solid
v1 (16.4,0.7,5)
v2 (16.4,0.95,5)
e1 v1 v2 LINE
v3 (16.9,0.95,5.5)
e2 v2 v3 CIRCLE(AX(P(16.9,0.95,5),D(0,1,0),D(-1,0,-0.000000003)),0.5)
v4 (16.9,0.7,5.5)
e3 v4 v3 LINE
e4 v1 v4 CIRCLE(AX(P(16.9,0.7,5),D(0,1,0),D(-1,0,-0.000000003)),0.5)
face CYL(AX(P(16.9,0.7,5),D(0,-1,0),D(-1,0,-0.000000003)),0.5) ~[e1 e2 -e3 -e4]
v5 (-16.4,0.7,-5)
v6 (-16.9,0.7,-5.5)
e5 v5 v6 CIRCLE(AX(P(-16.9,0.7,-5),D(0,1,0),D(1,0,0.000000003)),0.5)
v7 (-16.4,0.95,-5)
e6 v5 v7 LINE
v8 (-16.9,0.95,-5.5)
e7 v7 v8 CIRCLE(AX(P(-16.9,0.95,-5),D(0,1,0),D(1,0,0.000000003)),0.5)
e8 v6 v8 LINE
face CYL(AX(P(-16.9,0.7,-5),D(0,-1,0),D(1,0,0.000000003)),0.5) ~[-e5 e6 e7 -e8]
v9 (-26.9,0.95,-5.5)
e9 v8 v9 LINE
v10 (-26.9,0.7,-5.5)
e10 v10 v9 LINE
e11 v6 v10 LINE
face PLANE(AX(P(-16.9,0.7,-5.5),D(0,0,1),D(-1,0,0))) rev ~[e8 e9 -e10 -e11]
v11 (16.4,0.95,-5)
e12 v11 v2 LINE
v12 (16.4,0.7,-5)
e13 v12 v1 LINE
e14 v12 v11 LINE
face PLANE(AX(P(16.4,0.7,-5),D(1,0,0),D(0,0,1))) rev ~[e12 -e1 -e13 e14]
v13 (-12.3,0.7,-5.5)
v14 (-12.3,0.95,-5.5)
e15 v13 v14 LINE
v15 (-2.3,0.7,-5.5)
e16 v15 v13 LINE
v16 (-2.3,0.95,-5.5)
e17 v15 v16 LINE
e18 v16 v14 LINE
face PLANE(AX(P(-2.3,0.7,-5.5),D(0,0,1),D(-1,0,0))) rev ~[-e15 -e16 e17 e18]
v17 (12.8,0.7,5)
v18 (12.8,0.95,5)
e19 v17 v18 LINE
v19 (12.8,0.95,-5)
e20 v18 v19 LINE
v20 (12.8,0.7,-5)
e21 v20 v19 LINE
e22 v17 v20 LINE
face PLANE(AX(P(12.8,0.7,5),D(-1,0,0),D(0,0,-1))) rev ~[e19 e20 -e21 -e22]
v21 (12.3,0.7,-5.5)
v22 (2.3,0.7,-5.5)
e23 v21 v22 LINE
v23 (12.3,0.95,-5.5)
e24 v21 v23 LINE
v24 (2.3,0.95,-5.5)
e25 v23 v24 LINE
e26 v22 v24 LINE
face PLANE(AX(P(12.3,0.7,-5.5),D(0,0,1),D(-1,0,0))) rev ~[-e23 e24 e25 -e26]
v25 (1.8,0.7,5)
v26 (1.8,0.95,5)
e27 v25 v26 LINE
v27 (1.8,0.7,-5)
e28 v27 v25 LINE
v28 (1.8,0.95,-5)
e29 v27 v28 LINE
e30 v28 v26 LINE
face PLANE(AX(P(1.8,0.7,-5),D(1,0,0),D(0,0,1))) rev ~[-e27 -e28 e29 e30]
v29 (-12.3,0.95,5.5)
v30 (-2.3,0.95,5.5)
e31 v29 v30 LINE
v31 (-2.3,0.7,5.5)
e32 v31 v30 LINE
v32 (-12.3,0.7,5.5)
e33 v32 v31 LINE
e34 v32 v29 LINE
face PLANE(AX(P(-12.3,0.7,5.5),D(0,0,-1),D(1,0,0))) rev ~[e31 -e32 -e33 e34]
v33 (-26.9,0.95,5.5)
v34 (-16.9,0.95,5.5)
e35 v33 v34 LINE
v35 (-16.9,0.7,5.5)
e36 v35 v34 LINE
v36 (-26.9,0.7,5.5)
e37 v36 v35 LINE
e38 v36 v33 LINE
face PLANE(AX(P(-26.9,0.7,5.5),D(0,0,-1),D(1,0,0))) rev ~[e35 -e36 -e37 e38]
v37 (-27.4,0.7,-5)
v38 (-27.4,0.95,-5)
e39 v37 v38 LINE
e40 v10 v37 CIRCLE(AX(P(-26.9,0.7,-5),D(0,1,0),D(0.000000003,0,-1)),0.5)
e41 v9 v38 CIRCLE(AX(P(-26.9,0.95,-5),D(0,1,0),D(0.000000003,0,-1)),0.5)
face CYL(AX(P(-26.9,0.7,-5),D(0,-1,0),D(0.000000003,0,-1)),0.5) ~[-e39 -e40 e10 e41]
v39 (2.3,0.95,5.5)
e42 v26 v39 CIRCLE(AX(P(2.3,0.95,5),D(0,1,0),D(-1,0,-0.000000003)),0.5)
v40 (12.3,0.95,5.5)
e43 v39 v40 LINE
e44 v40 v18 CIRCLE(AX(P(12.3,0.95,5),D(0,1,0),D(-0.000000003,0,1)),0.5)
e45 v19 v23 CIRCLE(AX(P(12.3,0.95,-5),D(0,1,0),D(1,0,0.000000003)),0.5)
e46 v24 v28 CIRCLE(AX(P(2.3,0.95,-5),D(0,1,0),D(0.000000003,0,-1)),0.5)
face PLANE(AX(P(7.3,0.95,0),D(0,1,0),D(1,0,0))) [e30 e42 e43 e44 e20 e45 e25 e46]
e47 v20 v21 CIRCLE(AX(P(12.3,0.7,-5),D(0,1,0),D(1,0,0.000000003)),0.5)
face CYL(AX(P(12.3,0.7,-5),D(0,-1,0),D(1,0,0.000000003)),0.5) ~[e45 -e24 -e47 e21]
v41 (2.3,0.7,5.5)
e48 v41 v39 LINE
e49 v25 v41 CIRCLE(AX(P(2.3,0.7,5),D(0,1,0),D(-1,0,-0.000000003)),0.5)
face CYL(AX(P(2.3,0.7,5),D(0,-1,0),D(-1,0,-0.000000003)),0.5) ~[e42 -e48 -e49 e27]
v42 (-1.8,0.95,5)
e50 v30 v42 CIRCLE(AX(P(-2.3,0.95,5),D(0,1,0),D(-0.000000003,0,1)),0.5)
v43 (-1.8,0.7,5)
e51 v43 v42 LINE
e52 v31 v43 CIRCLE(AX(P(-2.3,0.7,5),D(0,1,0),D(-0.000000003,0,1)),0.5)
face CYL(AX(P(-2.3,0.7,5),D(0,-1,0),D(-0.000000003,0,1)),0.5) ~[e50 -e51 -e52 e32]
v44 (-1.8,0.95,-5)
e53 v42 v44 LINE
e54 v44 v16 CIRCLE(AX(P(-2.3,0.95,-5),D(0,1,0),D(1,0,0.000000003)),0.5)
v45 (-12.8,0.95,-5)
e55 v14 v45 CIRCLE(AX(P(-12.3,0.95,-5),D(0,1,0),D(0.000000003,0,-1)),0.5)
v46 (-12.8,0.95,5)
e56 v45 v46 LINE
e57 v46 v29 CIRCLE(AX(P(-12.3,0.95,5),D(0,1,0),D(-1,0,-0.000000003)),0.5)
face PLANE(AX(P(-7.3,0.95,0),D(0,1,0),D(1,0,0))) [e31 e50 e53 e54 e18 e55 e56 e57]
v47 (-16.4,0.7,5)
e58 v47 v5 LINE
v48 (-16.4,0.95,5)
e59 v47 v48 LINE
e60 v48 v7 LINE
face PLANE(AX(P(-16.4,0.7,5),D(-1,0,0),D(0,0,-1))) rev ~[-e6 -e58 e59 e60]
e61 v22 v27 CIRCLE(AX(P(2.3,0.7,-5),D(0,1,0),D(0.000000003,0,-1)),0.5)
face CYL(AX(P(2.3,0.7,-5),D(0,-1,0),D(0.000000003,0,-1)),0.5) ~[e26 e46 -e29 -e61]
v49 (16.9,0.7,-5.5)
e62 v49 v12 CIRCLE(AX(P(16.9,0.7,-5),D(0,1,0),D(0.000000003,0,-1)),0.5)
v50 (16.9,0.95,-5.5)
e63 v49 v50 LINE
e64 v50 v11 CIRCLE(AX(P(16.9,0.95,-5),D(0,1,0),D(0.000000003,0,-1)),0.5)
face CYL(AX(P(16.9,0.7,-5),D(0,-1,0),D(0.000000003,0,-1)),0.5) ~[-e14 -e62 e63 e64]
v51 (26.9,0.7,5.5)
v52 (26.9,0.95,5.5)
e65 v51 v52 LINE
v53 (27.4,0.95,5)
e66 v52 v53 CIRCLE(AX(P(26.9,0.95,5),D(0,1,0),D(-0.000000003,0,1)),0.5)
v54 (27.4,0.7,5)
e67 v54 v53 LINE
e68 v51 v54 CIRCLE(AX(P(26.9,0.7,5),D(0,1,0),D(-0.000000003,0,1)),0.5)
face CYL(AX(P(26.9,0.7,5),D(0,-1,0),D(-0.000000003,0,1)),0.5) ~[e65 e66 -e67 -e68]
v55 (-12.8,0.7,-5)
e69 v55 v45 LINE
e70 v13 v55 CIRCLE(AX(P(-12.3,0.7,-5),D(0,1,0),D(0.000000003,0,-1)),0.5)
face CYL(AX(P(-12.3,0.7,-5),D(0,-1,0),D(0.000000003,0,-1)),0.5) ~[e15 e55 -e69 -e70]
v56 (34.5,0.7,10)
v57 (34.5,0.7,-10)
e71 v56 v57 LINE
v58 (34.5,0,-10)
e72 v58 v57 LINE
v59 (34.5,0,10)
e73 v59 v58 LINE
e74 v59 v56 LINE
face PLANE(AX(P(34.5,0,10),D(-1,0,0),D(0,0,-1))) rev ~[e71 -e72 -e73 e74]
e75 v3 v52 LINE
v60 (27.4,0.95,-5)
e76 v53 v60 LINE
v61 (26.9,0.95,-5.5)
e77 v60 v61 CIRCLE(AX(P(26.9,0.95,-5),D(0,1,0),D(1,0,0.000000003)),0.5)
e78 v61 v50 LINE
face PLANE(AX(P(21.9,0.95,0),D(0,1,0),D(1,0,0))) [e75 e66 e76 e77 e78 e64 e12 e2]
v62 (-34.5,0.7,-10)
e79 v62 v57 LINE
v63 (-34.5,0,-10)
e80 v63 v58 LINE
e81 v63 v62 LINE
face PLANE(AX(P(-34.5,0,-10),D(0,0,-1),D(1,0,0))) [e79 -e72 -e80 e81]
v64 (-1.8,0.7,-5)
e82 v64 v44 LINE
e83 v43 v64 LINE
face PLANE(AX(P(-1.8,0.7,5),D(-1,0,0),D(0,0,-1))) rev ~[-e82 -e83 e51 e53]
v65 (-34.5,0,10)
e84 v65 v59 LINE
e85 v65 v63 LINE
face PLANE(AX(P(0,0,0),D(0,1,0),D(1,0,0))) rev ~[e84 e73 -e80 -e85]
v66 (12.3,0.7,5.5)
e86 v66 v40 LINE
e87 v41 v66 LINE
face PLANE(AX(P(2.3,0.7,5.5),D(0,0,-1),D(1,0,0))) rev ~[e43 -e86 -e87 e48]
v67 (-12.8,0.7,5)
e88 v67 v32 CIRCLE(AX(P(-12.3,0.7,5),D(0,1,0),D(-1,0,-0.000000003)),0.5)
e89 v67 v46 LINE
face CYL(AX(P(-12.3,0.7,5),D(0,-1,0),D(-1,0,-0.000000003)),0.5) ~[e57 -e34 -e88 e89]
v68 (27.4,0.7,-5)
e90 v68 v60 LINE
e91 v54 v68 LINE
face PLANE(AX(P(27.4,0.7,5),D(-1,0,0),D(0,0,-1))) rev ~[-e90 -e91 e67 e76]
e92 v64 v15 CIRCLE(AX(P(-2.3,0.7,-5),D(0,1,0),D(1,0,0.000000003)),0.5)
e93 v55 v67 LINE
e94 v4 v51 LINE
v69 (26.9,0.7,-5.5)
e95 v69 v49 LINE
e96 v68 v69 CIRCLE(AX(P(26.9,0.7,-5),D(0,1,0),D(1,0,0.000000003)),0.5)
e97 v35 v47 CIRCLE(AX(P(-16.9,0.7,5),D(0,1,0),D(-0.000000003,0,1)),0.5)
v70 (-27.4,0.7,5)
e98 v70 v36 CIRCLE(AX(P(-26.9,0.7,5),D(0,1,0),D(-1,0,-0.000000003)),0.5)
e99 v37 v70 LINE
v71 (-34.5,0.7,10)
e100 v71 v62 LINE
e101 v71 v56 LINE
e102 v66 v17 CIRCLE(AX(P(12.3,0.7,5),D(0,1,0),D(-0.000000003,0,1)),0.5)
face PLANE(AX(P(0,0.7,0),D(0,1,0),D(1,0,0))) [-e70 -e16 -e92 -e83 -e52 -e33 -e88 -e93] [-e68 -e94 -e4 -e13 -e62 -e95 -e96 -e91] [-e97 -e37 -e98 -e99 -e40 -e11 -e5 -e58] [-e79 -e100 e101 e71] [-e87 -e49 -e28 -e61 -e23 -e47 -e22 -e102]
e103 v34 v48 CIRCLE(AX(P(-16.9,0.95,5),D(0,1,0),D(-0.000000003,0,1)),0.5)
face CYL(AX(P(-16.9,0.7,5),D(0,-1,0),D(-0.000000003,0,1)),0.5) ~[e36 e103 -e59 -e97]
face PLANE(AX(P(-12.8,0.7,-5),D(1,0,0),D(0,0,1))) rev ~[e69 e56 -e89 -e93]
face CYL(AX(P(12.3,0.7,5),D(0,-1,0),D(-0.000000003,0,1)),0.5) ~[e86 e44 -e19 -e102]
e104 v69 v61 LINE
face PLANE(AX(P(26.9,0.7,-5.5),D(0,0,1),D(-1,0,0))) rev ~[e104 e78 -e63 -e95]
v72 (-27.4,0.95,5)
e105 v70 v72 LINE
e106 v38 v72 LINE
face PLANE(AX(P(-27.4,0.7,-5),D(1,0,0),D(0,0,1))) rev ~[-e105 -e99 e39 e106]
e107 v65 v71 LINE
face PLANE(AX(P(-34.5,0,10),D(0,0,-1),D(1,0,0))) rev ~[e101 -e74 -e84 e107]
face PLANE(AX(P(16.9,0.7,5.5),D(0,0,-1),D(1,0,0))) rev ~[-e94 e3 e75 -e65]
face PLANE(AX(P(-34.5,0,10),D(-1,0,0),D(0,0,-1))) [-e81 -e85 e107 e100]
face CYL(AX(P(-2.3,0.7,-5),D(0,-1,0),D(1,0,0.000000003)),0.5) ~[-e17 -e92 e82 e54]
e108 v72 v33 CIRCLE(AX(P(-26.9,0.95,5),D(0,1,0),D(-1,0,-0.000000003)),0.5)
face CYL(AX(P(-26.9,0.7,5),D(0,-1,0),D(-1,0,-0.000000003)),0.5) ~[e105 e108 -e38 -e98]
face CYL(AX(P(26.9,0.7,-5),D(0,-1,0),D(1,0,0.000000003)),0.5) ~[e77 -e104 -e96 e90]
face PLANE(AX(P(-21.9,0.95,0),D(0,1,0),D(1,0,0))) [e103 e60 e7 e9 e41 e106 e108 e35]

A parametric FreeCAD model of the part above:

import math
import FreeCAD as App
import Part
import Sketcher

doc = App.newDocument("Part")
params = doc.addObject("Spreadsheet::Sheet", "Params")
for row, (alias, value) in enumerate([
    ("sketch1_width", "69 mm"),
    ("sketch1_height", "20 mm"),
    ("pad1_length", "0.7 mm"),
    ("sketch2_radius", "0.5 mm"),
    ("sketch2_width", "10 mm"),
    ("pad2_length", "0.25 mm"),
], start=1):
    params.set(f"A{row}", alias)
    params.set(f"B{row}", "=" + value)
    params.setAlias(f"B{row}", alias)

body = doc.addObject("PartDesign::Body", "Body")

# Sketch on XZ plane
sketch1 = doc.addObject("Sketcher::SketchObject", "Sketch")
body.addObject(sketch1)
sketch1.AttachmentSupport = (doc.XZ_Plane, [""])
sketch1.MapMode = "FlatFace"
sketch1.addGeometry([
    Part.LineSegment(App.Vector(-34, -10, 0), App.Vector(-34, 10, 0)),
    Part.LineSegment(App.Vector(-34, 10, 0), App.Vector(34, 10, 0)),
    Part.LineSegment(App.Vector(34, 10, 0), App.Vector(34, -10, 0)),
    Part.LineSegment(App.Vector(34, -10, 0), App.Vector(-34, -10, 0)),
], False)
sketch1.addConstraint([
    Sketcher.Constraint("Coincident", 0, 2, 1, 1),
    Sketcher.Constraint("Coincident", 1, 2, 2, 1),
    Sketcher.Constraint("Coincident", 2, 2, 3, 1),
    Sketcher.Constraint("Coincident", 3, 2, 0, 1),
    Sketcher.Constraint("Vertical", 0),
    Sketcher.Constraint("Horizontal", 1),
    Sketcher.Constraint("Vertical", 2),
    Sketcher.Constraint("Horizontal", 3),
    Sketcher.Constraint("Symmetric", 0, 2, 2, 2, -1, 1),
    Sketcher.Constraint("DistanceX", 1, 1, 1, 2, 69.0),
    Sketcher.Constraint("DistanceY", 0, 1, 0, 2, 20.0),
])
sketch1.setExpression("Constraints[9]", "Params.sketch1_width")
sketch1.setExpression("Constraints[10]", "Params.sketch1_height")
pad1 = doc.addObject("PartDesign::Pad", "Pad")
body.addObject(pad1)
pad1.Profile = sketch1
pad1.setExpression("Length", "Params.pad1_length")
pad1.Reversed = True

# Sketch on XZ plane
sketch2 = doc.addObject("Sketcher::SketchObject", "Sketch001")
body.addObject(sketch2)
sketch2.AttachmentSupport = (doc.XZ_Plane, [""])
sketch2.MapMode = "FlatFace"
sketch2.AttachmentOffset = App.Placement(App.Vector(0, 0, -0.7), App.Rotation())
sketch2.addGeometry([
    Part.LineSegment(App.Vector(-26.9, 5.5, 0), App.Vector(-16.9, 5.5, 0)),  # 0
    Part.ArcOfCircle(Part.Circle(App.Vector(-16.9, 5, 0), App.Vector(0, 0, 1), 0.5), math.radians(0), math.radians(90)),  # 1
    Part.LineSegment(App.Vector(-16.4, 5, 0), App.Vector(-16.4, -5, 0)),  # 2
    Part.ArcOfCircle(Part.Circle(App.Vector(-16.9, -5, 0), App.Vector(0, 0, 1), 0.5), math.radians(-90), math.radians(0)),  # 3
    Part.LineSegment(App.Vector(-16.9, -5.5, 0), App.Vector(-26.9, -5.5, 0)),  # 4
    Part.ArcOfCircle(Part.Circle(App.Vector(-26.9, -5, 0), App.Vector(0, 0, 1), 0.5), math.radians(180), math.radians(270)),  # 5
    Part.LineSegment(App.Vector(-27.4, -5, 0), App.Vector(-27.4, 5, 0)),  # 6
    Part.ArcOfCircle(Part.Circle(App.Vector(-26.9, 5, 0), App.Vector(0, 0, 1), 0.5), math.radians(90), math.radians(180)),  # 7
    Part.LineSegment(App.Vector(-12.3, 5.5, 0), App.Vector(-2.3, 5.5, 0)),  # 8
    Part.ArcOfCircle(Part.Circle(App.Vector(-2.3, 5, 0), App.Vector(0, 0, 1), 0.5), math.radians(0), math.radians(90)),  # 9
    Part.LineSegment(App.Vector(-1.8, 5, 0), App.Vector(-1.8, -5, 0)),  # 10
    Part.ArcOfCircle(Part.Circle(App.Vector(-2.3, -5, 0), App.Vector(0, 0, 1), 0.5), math.radians(-90), math.radians(0)),  # 11
    Part.LineSegment(App.Vector(-2.3, -5.5, 0), App.Vector(-12.3, -5.5, 0)),  # 12
    Part.ArcOfCircle(Part.Circle(App.Vector(-12.3, -5, 0), App.Vector(0, 0, 1), 0.5), math.radians(180), math.radians(270)),  # 13
    Part.LineSegment(App.Vector(-12.8, -5, 0), App.Vector(-12.8, 5, 0)),  # 14
    Part.ArcOfCircle(Part.Circle(App.Vector(-12.3, 5, 0), App.Vector(0, 0, 1), 0.5), math.radians(90), math.radians(180)),  # 15
    Part.LineSegment(App.Vector(2.3, 5.5, 0), App.Vector(12.3, 5.5, 0)),  # 16
    Part.ArcOfCircle(Part.Circle(App.Vector(12.3, 5, 0), App.Vector(0, 0, 1), 0.5), math.radians(0), math.radians(90)),  # 17
    Part.LineSegment(App.Vector(12.8, 5, 0), App.Vector(12.8, -5, 0)),  # 18
    Part.ArcOfCircle(Part.Circle(App.Vector(12.3, -5, 0), App.Vector(0, 0, 1), 0.5), math.radians(-90), math.radians(0)),  # 19
    Part.LineSegment(App.Vector(12.3, -5.5, 0), App.Vector(2.3, -5.5, 0)),  # 20
    Part.ArcOfCircle(Part.Circle(App.Vector(2.3, -5, 0), App.Vector(0, 0, 1), 0.5), math.radians(180), math.radians(270)),  # 21
    Part.LineSegment(App.Vector(1.8, -5, 0), App.Vector(1.8, 5, 0)),  # 22
    Part.ArcOfCircle(Part.Circle(App.Vector(2.3, 5, 0), App.Vector(0, 0, 1), 0.5), math.radians(90), math.radians(180)),  # 23
    Part.LineSegment(App.Vector(16.9, 5.5, 0), App.Vector(26.9, 5.5, 0)),  # 24
    Part.ArcOfCircle(Part.Circle(App.Vector(26.9, 5, 0), App.Vector(0, 0, 1), 0.5), math.radians(0), math.radians(90)),  # 25
    Part.LineSegment(App.Vector(27.4, 5, 0), App.Vector(27.4, -5, 0)),  # 26
    Part.ArcOfCircle(Part.Circle(App.Vector(26.9, -5, 0), App.Vector(0, 0, 1), 0.5), math.radians(-90), math.radians(0)),  # 27
    Part.LineSegment(App.Vector(26.9, -5.5, 0), App.Vector(16.9, -5.5, 0)),  # 28
    Part.ArcOfCircle(Part.Circle(App.Vector(16.9, -5, 0), App.Vector(0, 0, 1), 0.5), math.radians(180), math.radians(270)),  # 29
    Part.LineSegment(App.Vector(16.4, -5, 0), App.Vector(16.4, 5, 0)),  # 30
    Part.ArcOfCircle(Part.Circle(App.Vector(16.9, 5, 0), App.Vector(0, 0, 1), 0.5), math.radians(90), math.radians(180)),  # 31
], False)
sketch2.addConstraint([
    Sketcher.Constraint("Tangent", 0, 2, 1, 2),
    Sketcher.Constraint("Tangent", 1, 1, 2, 1),
    Sketcher.Constraint("Tangent", 2, 2, 3, 2),
    Sketcher.Constraint("Tangent", 3, 1, 4, 1),
    Sketcher.Constraint("Tangent", 4, 2, 5, 2),
    Sketcher.Constraint("Tangent", 5, 1, 6, 1),
    Sketcher.Constraint("Tangent", 6, 2, 7, 2),
    Sketcher.Constraint("Tangent", 7, 1, 0, 1),
    Sketcher.Constraint("Tangent", 8, 2, 9, 2),
    Sketcher.Constraint("Tangent", 9, 1, 10, 1),
    Sketcher.Constraint("Tangent", 10, 2, 11, 2),
    Sketcher.Constraint("Tangent", 11, 1, 12, 1),
    Sketcher.Constraint("Tangent", 12, 2, 13, 2),
    Sketcher.Constraint("Tangent", 13, 1, 14, 1),
    Sketcher.Constraint("Tangent", 14, 2, 15, 2),
    Sketcher.Constraint("Tangent", 15, 1, 8, 1),
    Sketcher.Constraint("Tangent", 16, 2, 17, 2),
    Sketcher.Constraint("Tangent", 17, 1, 18, 1),
    Sketcher.Constraint("Tangent", 18, 2, 19, 2),
    Sketcher.Constraint("Tangent", 19, 1, 20, 1),
    Sketcher.Constraint("Tangent", 20, 2, 21, 2),
    Sketcher.Constraint("Tangent", 21, 1, 22, 1),
    Sketcher.Constraint("Tangent", 22, 2, 23, 2),
    Sketcher.Constraint("Tangent", 23, 1, 16, 1),
    Sketcher.Constraint("Tangent", 24, 2, 25, 2),
    Sketcher.Constraint("Tangent", 25, 1, 26, 1),
    Sketcher.Constraint("Tangent", 26, 2, 27, 2),
    Sketcher.Constraint("Tangent", 27, 1, 28, 1),
    Sketcher.Constraint("Tangent", 28, 2, 29, 2),
    Sketcher.Constraint("Tangent", 29, 1, 30, 1),
    Sketcher.Constraint("Tangent", 30, 2, 31, 2),
    Sketcher.Constraint("Tangent", 31, 1, 24, 1),
    Sketcher.Constraint("Horizontal", 0),
    Sketcher.Constraint("Vertical", 2),
    Sketcher.Constraint("Horizontal", 4),
    Sketcher.Constraint("Vertical", 6),
    Sketcher.Constraint("Horizontal", 8),
    Sketcher.Constraint("Vertical", 10),
    Sketcher.Constraint("Horizontal", 12),
    Sketcher.Constraint("Vertical", 14),
    Sketcher.Constraint("Horizontal", 16),
    Sketcher.Constraint("Vertical", 18),
    Sketcher.Constraint("Horizontal", 20),
    Sketcher.Constraint("Vertical", 22),
    Sketcher.Constraint("Horizontal", 24),
    Sketcher.Constraint("Vertical", 26),
    Sketcher.Constraint("Horizontal", 28),
    Sketcher.Constraint("Vertical", 30),
    Sketcher.Constraint("Equal", 1, 3),
    Sketcher.Constraint("Equal", 3, 5),
    Sketcher.Constraint("Equal", 5, 7),
    Sketcher.Constraint("Equal", 7, 9),
    Sketcher.Constraint("Equal", 9, 11),
    Sketcher.Constraint("Equal", 11, 13),
    Sketcher.Constraint("Equal", 13, 15),
    Sketcher.Constraint("Equal", 15, 17),
    Sketcher.Constraint("Equal", 17, 19),
    Sketcher.Constraint("Equal", 19, 21),
    Sketcher.Constraint("Equal", 21, 23),
    Sketcher.Constraint("Equal", 23, 25),
    Sketcher.Constraint("Equal", 25, 27),
    Sketcher.Constraint("Equal", 27, 29),
    Sketcher.Constraint("Equal", 29, 31),
    Sketcher.Constraint("Symmetric", 13, 3, 17, 3, -1, 1),
    Sketcher.Constraint("Symmetric", 9, 3, 21, 3, -1, 1),
    Sketcher.Constraint("Symmetric", 5, 3, 25, 3, -1, 1),
    Sketcher.Constraint("Symmetric", 1, 3, 29, 3, -1, 1),
    Sketcher.Constraint("Horizontal", 7, 3, 9, 3),
    Sketcher.Constraint("Horizontal", 5, 3, 11, 3),
    Sketcher.Constraint("Horizontal", 15, 3, 17, 3),
    Sketcher.Constraint("Equal", 4, 8),
    Sketcher.Constraint("Equal", 28, 2),
    Sketcher.Constraint("Radius", 1, 0.5),
    Sketcher.Constraint("DistanceX", 0, 1, 0, 2, 10.0),
    Sketcher.Constraint("DistanceX", 1, 3, -1, 1, 16.9),
    Sketcher.Constraint("DistanceX", 9, 3, -1, 1, 2.3),
])
sketch2.setExpression("Constraints[72]", "Params.sketch2_radius")
sketch2.setExpression("Constraints[73]", "Params.sketch2_width")
pad2 = doc.addObject("PartDesign::Pad", "Pad001")
body.addObject(pad2)
pad2.Profile = sketch2
pad2.setExpression("Length", "Params.pad2_length")
pad2.Reversed = True

doc.recompute()
